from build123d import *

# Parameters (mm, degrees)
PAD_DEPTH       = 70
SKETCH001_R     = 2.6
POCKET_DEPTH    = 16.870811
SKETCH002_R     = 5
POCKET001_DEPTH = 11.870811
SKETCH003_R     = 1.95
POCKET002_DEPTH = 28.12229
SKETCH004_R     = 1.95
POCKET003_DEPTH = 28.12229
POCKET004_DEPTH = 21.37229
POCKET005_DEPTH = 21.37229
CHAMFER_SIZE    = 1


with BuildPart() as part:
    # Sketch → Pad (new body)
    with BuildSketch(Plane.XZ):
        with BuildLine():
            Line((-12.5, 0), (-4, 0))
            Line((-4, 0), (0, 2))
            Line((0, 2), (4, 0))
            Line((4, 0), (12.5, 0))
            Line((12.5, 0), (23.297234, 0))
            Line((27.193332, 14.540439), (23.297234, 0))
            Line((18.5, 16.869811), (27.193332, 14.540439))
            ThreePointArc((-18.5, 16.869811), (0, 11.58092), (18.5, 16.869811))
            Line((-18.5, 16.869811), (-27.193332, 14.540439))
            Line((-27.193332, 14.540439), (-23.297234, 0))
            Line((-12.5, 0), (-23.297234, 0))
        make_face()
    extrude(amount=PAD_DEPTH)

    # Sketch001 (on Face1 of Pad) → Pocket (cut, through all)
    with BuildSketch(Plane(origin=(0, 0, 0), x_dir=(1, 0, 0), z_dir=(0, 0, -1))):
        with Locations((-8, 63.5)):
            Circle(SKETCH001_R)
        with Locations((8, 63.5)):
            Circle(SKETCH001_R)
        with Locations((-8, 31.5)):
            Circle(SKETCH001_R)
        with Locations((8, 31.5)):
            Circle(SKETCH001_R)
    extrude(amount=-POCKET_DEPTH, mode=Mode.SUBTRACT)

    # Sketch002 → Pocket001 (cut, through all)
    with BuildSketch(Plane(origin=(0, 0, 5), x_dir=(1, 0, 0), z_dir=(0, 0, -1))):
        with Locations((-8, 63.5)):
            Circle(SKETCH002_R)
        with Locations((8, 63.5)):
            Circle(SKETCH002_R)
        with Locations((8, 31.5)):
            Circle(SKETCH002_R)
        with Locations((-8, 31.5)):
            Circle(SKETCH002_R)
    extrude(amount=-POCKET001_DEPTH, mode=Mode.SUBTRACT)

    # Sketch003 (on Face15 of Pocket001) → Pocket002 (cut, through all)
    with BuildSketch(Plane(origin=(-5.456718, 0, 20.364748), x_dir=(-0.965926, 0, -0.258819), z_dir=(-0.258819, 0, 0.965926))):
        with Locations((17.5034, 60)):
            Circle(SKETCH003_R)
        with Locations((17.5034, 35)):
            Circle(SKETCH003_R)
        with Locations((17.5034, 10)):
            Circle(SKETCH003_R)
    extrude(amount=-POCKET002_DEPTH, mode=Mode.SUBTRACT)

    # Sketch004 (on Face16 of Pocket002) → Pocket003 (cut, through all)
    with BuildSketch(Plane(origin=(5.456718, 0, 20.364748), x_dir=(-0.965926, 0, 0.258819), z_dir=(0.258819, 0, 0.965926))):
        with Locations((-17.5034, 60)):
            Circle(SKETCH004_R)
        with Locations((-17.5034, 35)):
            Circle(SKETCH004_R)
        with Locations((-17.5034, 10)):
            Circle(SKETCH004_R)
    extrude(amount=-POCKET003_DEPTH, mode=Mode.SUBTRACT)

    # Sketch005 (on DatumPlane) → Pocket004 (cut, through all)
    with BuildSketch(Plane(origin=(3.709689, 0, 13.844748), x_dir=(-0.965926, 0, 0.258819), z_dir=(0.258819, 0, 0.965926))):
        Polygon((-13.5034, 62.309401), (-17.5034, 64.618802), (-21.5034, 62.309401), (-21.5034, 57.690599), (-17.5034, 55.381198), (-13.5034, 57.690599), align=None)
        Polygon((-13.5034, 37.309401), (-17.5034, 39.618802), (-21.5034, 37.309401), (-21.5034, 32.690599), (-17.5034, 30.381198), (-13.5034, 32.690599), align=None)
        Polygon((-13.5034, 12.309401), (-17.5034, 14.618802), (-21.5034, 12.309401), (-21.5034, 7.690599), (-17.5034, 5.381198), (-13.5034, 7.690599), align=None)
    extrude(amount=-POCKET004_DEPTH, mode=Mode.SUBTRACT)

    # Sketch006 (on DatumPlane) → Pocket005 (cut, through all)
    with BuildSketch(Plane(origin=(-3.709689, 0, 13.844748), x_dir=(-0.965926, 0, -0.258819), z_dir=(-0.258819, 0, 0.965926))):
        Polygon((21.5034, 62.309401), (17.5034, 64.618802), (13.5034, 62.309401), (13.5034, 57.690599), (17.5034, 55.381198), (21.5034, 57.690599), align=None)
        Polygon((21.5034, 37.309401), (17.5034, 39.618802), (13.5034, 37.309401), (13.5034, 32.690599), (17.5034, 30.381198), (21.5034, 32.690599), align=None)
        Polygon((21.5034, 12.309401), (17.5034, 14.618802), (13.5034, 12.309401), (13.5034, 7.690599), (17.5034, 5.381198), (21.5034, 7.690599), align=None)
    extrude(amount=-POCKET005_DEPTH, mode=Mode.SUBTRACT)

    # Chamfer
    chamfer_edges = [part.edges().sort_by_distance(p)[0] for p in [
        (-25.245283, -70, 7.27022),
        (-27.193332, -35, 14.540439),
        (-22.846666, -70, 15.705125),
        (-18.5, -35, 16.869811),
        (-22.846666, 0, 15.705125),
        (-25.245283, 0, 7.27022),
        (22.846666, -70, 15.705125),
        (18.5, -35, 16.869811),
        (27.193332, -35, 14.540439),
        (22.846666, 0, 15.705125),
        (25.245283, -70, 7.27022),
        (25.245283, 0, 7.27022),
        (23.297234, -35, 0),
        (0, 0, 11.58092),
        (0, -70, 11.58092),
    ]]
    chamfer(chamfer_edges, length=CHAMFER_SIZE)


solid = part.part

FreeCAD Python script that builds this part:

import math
import FreeCAD as App
import Part
import Sketcher
Q = App.Units.Quantity


def edges_at(feature, points):
    """Names of the edges that pass closest to the given points."""
    edges = feature.Shape.Edges
    near = lambda p: min(range(len(edges)), key=lambda i: edges[i].distToShape(Part.Vertex(*p))[0])
    return sorted({f"Edge{near(p) + 1}" for p in points})

doc = App.newDocument("Part")
body = doc.addObject("PartDesign::Body", "Body")

# Sketch on XZ plane
sketch1 = doc.addObject("Sketcher::SketchObject", "Sketch")
body.addObject(sketch1)
sketch1.AttachmentSupport = (doc.XZ_Plane, [""])
sketch1.MapMode = "FlatFace"
sketch1.addGeometry(Part.LineSegment(App.Vector(-4, 0, 0), App.Vector(0, 2, 0)), False)
sketch1.addGeometry(Part.LineSegment(App.Vector(0, 2, 0), App.Vector(4, 0, 0)), False)
sketch1.addGeometry(Part.LineSegment(App.Vector(4, 0, 0), App.Vector(23.3, 0, 0)), False)
sketch1.addGeometry(Part.LineSegment(App.Vector(23.3, 0, 0), App.Vector(27.2, 14.5, 0)), False)
sketch1.addGeometry(Part.LineSegment(App.Vector(27.2, 14.5, 0), App.Vector(18.5, 16.9, 0)), False)
sketch1.addGeometry(Part.ArcOfCircle(Part.Circle(App.Vector(0, 46.6, 0), App.Vector(0, 0, 1), 35), math.radians(-122), math.radians(-58)), False)
sketch1.addGeometry(Part.LineSegment(App.Vector(-18.5, 16.9, 0), App.Vector(-27.2, 14.5, 0)), False)
sketch1.addGeometry(Part.LineSegment(App.Vector(-27.2, 14.5, 0), App.Vector(-23.3, 0, 0)), False)
sketch1.addGeometry(Part.LineSegment(App.Vector(-23.3, 0, 0), App.Vector(-4, 0, 0)), False)
sketch1.addConstraint(Sketcher.Constraint("Coincident", 0, 2, 1, 1))
sketch1.addConstraint(Sketcher.Constraint("Coincident", 1, 2, 2, 1))
sketch1.addConstraint(Sketcher.Constraint("Coincident", 2, 2, 3, 1))
sketch1.addConstraint(Sketcher.Constraint("Coincident", 3, 2, 4, 1))
sketch1.addConstraint(Sketcher.Constraint("Coincident", 4, 2, 5, 2))
sketch1.addConstraint(Sketcher.Constraint("Coincident", 5, 1, 6, 1))
sketch1.addConstraint(Sketcher.Constraint("Coincident", 6, 2, 7, 1))
sketch1.addConstraint(Sketcher.Constraint("Coincident", 7, 2, 8, 1))
sketch1.addConstraint(Sketcher.Constraint("Coincident", 8, 2, 0, 1))
sketch1.addConstraint(Sketcher.Constraint("Horizontal", 2))
sketch1.addConstraint(Sketcher.Constraint("Horizontal", 8))
sketch1.addConstraint(Sketcher.Constraint("Symmetric", 2, 2, 7, 2, -1, 1))
sketch1.addConstraint(Sketcher.Constraint("Symmetric", 4, 2, 5, 1, -2))
sketch1.addConstraint(Sketcher.Constraint("Symmetric", 3, 2, 6, 2, -2))
sketch1.addConstraint(Sketcher.Constraint("Symmetric", 1, 2, 8, 2, -2))
sketch1.addConstraint(Sketcher.Constraint("PointOnObject", 0, 2, -2))
sketch1.addConstraint(Sketcher.Constraint("Perpendicular", 3, 4))
sketch1.addConstraint(Sketcher.Constraint("Radius", 5, Q("35 mm")))
sketch1.addConstraint(Sketcher.Constraint("Angle", 3, Q("75.000003 deg")))
sketch1.addConstraint(Sketcher.Constraint("Distance", 4, Q("9 mm")))
sketch1.addConstraint(Sketcher.Constraint("DistanceY", -1, 1, 0, 2, Q("2 mm")))
sketch1.addConstraint(Sketcher.Constraint("DistanceX", -1, 1, 1, 2, Q("4 mm")))
sketch1.addConstraint(Sketcher.Constraint("DistanceX", 5, 1, 4, 2, Q("37 mm")))
sketch1.addConstraint(Sketcher.Constraint("DistanceX", 2, 2, 3, 2, Q("3.896098 mm")))
pad1 = doc.addObject("PartDesign::Pad", "Pad")
body.addObject(pad1)
pad1.Profile = sketch1
pad1.Length = 70

# Sketch on XY plane
sketch2 = doc.addObject("Sketcher::SketchObject", "Sketch001")
body.addObject(sketch2)
sketch2.AttachmentSupport = (doc.XY_Plane, [""])
sketch2.MapMode = "FlatFace"
sketch2.addGeometry(Part.Circle(App.Vector(-8, -63.5, 0), App.Vector(0, 0, 1), 2.6), False)
sketch2.addGeometry(Part.Circle(App.Vector(8, -63.5, 0), App.Vector(0, 0, 1), 2.6), False)
sketch2.addGeometry(Part.Circle(App.Vector(-8, -31.5, 0), App.Vector(0, 0, 1), 2.6), False)
sketch2.addGeometry(Part.Circle(App.Vector(8, -31.5, 0), App.Vector(0, 0, 1), 2.6), False)
sketch2.addConstraint(Sketcher.Constraint("Equal", 0, 1))
sketch2.addConstraint(Sketcher.Constraint("Equal", 1, 2))
sketch2.addConstraint(Sketcher.Constraint("Equal", 2, 3))
sketch2.addConstraint(Sketcher.Constraint("Symmetric", 0, 3, 1, 3, -2))
sketch2.addConstraint(Sketcher.Constraint("Symmetric", 2, 3, 3, 3, -2))
sketch2.addConstraint(Sketcher.Constraint("Vertical", 0, 3, 2, 3))
sketch2.addConstraint(Sketcher.Constraint("Diameter", 0, Q("5.2 mm")))
sketch2.addConstraint(Sketcher.Constraint("DistanceX", 0, 3, -1, 1, Q("8 mm")))
sketch2.addConstraint(Sketcher.Constraint("DistanceY", 0, 3, 2, 3, Q("32 mm")))
sketch2.addConstraint(Sketcher.Constraint("DistanceY", 0, 3, -1, 1, Q("63.5 mm")))
pocket1 = doc.addObject("PartDesign::Pocket", "Pocket")
body.addObject(pocket1)
pocket1.Profile = sketch2
pocket1.Type = "ThroughAll"
pocket1.Reversed = True

# Sketch on XY plane
sketch3 = doc.addObject("Sketcher::SketchObject", "Sketch002")
body.addObject(sketch3)
sketch3.AttachmentSupport = (doc.XY_Plane, [""])
sketch3.MapMode = "FlatFace"
sketch3.AttachmentOffset = App.Placement(App.Vector(0, 0, 5), App.Rotation())
sketch3.addGeometry(Part.Circle(App.Vector(-8, -64, 0), App.Vector(0, 0, 1), 5), False)
sketch3.addGeometry(Part.Circle(App.Vector(8, -64, 0), App.Vector(0, 0, 1), 5), False)
sketch3.addGeometry(Part.Circle(App.Vector(8, -32, 0), App.Vector(0, 0, 1), 5), False)
sketch3.addGeometry(Part.Circle(App.Vector(-8, -32, 0), App.Vector(0, 0, 1), 5), False)
sketch3.addConstraint(Sketcher.Constraint("Equal", 0, 1))
sketch3.addConstraint(Sketcher.Constraint("Equal", 1, 2))
sketch3.addConstraint(Sketcher.Constraint("Equal", 2, 3))
sketch3.addConstraint(Sketcher.Constraint("Symmetric", 0, 3, 1, 3, -2))
sketch3.addConstraint(Sketcher.Constraint("Symmetric", 2, 3, 3, 3, -2))
sketch3.addConstraint(Sketcher.Constraint("Vertical", 1, 3, 2, 3))
sketch3.addConstraint(Sketcher.Constraint("Diameter", 0, Q("10 mm")))
sketch3.addConstraint(Sketcher.Constraint("DistanceX", 0, 3, -1, 1, Q("8 mm")))
sketch3.addConstraint(Sketcher.Constraint("DistanceY", 1, 3, 2, 3, Q("32 mm")))
sketch3.addConstraint(Sketcher.Constraint("DistanceY", 0, 3, -1, 1, Q("63.5 mm")))
pocket2 = doc.addObject("PartDesign::Pocket", "Pocket001")
body.addObject(pocket2)
pocket2.Profile = sketch3
pocket2.Type = "ThroughAll"
pocket2.Reversed = True

# Sketch on an angled plane
sketch4 = doc.addObject("Sketcher::SketchObject", "Sketch003")
body.addObject(sketch4)
sketch4.Placement = App.Placement(App.Vector(-5.456718, 0, 20.364748), App.Rotation(App.Vector(-0.965925849, 0, -0.25881896), App.Vector(0, -1, 0), App.Vector(-0.25881896, 0, 0.965925849), "ZXY"))
sketch4.addGeometry(Part.Circle(App.Vector(17.5, 60, 0), App.Vector(0, 0, 1), 1.9), False)
sketch4.addGeometry(Part.Circle(App.Vector(17.5, 35, 0), App.Vector(0, 0, 1), 1.9), False)
sketch4.addGeometry(Part.Circle(App.Vector(17.5, 10, 0), App.Vector(0, 0, 1), 1.9), False)
sketch4.addConstraint(Sketcher.Constraint("Equal", 0, 1))
sketch4.addConstraint(Sketcher.Constraint("Equal", 1, 2))
sketch4.addConstraint(Sketcher.Constraint("Vertical", 0, 3, 1, 3))
sketch4.addConstraint(Sketcher.Constraint("Vertical", 1, 3, 2, 3))
sketch4.addConstraint(Sketcher.Constraint("Diameter", 0, Q("3.9 mm")))
sketch4.addConstraint(Sketcher.Constraint("DistanceY", -1, 1, 0, 3, Q("60 mm")))
sketch4.addConstraint(Sketcher.Constraint("DistanceY", -1, 1, 1, 3, Q("35 mm")))
sketch4.addConstraint(Sketcher.Constraint("DistanceY", -1, 1, 2, 3, Q("10 mm")))
sketch4.addConstraint(Sketcher.Constraint("DistanceX", -1, 1, 0, 3, Q("17.5034 mm")))
pocket3 = doc.addObject("PartDesign::Pocket", "Pocket002")
body.addObject(pocket3)
pocket3.Profile = sketch4
pocket3.Type = "ThroughAll"

# Sketch on an angled plane
sketch5 = doc.addObject("Sketcher::SketchObject", "Sketch004")
body.addObject(sketch5)
sketch5.Placement = App.Placement(App.Vector(5.456718, 0, 20.364748), App.Rotation(App.Vector(-0.965925849, 0, 0.25881896), App.Vector(0, -1, 0), App.Vector(0.25881896, 0, 0.965925849), "ZXY"))
sketch5.addGeometry(Part.Circle(App.Vector(-17.5, 60, 0), App.Vector(0, 0, 1), 1.9), False)
sketch5.addGeometry(Part.Circle(App.Vector(-17.5, 35, 0), App.Vector(0, 0, 1), 1.9), False)
sketch5.addGeometry(Part.Circle(App.Vector(-17.5, 10, 0), App.Vector(0, 0, 1), 1.9), False)
sketch5.addConstraint(Sketcher.Constraint("Equal", 0, 1))
sketch5.addConstraint(Sketcher.Constraint("Equal", 1, 2))
sketch5.addConstraint(Sketcher.Constraint("Vertical", 0, 3, 1, 3))
sketch5.addConstraint(Sketcher.Constraint("Vertical", 1, 3, 2, 3))
sketch5.addConstraint(Sketcher.Constraint("Diameter", 0, Q("3.9 mm")))
sketch5.addConstraint(Sketcher.Constraint("DistanceY", -1, 1, 0, 3, Q("60 mm")))
sketch5.addConstraint(Sketcher.Constraint("DistanceY", -1, 1, 1, 3, Q("35 mm")))
sketch5.addConstraint(Sketcher.Constraint("DistanceY", -1, 1, 2, 3, Q("10 mm")))
sketch5.addConstraint(Sketcher.Constraint("DistanceX", 0, 3, -1, 1, Q("17.5034 mm")))
pocket4 = doc.addObject("PartDesign::Pocket", "Pocket003")
body.addObject(pocket4)
pocket4.Profile = sketch5
pocket4.Type = "ThroughAll"

# Sketch on an angled plane
sketch6 = doc.addObject("Sketcher::SketchObject", "Sketch005")
body.addObject(sketch6)
sketch6.Placement = App.Placement(App.Vector(3.709689, 0, 13.844748), App.Rotation(App.Vector(-0.965925849, 0, 0.25881896), App.Vector(0, -1, 0), App.Vector(0.25881896, 0, 0.965925849), "ZXY"))
sketch6.addGeometry(Part.LineSegment(App.Vector(-13.5, 62.3, 0), App.Vector(-17.5, 64.6, 0)), False)
sketch6.addGeometry(Part.LineSegment(App.Vector(-17.5, 64.6, 0), App.Vector(-21.5, 62.3, 0)), False)
sketch6.addGeometry(Part.LineSegment(App.Vector(-21.5, 62.3, 0), App.Vector(-21.5, 57.7, 0)), False)
sketch6.addGeometry(Part.LineSegment(App.Vector(-21.5, 57.7, 0), App.Vector(-17.5, 55.4, 0)), False)
sketch6.addGeometry(Part.LineSegment(App.Vector(-17.5, 55.4, 0), App.Vector(-13.5, 57.7, 0)), False)
sketch6.addGeometry(Part.LineSegment(App.Vector(-13.5, 57.7, 0), App.Vector(-13.5, 62.3, 0)), False)
sketch6.addGeometry(Part.LineSegment(App.Vector(-13.5, 37.3, 0), App.Vector(-17.5, 39.6, 0)), False)
sketch6.addGeometry(Part.LineSegment(App.Vector(-17.5, 39.6, 0), App.Vector(-21.5, 37.3, 0)), False)
sketch6.addGeometry(Part.LineSegment(App.Vector(-21.5, 37.3, 0), App.Vector(-21.5, 32.7, 0)), False)
sketch6.addGeometry(Part.LineSegment(App.Vector(-21.5, 32.7, 0), App.Vector(-17.5, 30.4, 0)), False)
sketch6.addGeometry(Part.LineSegment(App.Vector(-17.5, 30.4, 0), App.Vector(-13.5, 32.7, 0)), False)
sketch6.addGeometry(Part.LineSegment(App.Vector(-13.5, 32.7, 0), App.Vector(-13.5, 37.3, 0)), False)
sketch6.addGeometry(Part.LineSegment(App.Vector(-13.5, 12.3, 0), App.Vector(-17.5, 14.6, 0)), False)
sketch6.addGeometry(Part.LineSegment(App.Vector(-17.5, 14.6, 0), App.Vector(-21.5, 12.3, 0)), False)
sketch6.addGeometry(Part.LineSegment(App.Vector(-21.5, 12.3, 0), App.Vector(-21.5, 7.7, 0)), False)
sketch6.addGeometry(Part.LineSegment(App.Vector(-21.5, 7.7, 0), App.Vector(-17.5, 5.4, 0)), False)
sketch6.addGeometry(Part.LineSegment(App.Vector(-17.5, 5.4, 0), App.Vector(-13.5, 7.7, 0)), False)
sketch6.addGeometry(Part.LineSegment(App.Vector(-13.5, 7.7, 0), App.Vector(-13.5, 12.3, 0)), False)
sketch6.addConstraint(Sketcher.Constraint("Coincident", 0, 2, 1, 1))
sketch6.addConstraint(Sketcher.Constraint("Coincident", 1, 2, 2, 1))
sketch6.addConstraint(Sketcher.Constraint("Coincident", 2, 2, 3, 1))
sketch6.addConstraint(Sketcher.Constraint("Coincident", 3, 2, 4, 1))
sketch6.addConstraint(Sketcher.Constraint("Coincident", 4, 2, 5, 1))
sketch6.addConstraint(Sketcher.Constraint("Coincident", 5, 2, 0, 1))
sketch6.addConstraint(Sketcher.Constraint("Coincident", 6, 2, 7, 1))
sketch6.addConstraint(Sketcher.Constraint("Coincident", 7, 2, 8, 1))
sketch6.addConstraint(Sketcher.Constraint("Coincident", 8, 2, 9, 1))
sketch6.addConstraint(Sketcher.Constraint("Coincident", 9, 2, 10, 1))
sketch6.addConstraint(Sketcher.Constraint("Coincident", 10, 2, 11, 1))
sketch6.addConstraint(Sketcher.Constraint("Coincident", 11, 2, 6, 1))
sketch6.addConstraint(Sketcher.Constraint("Coincident", 12, 2, 13, 1))
sketch6.addConstraint(Sketcher.Constraint("Coincident", 13, 2, 14, 1))
sketch6.addConstraint(Sketcher.Constraint("Coincident", 14, 2, 15, 1))
sketch6.addConstraint(Sketcher.Constraint("Coincident", 15, 2, 16, 1))
sketch6.addConstraint(Sketcher.Constraint("Coincident", 16, 2, 17, 1))
sketch6.addConstraint(Sketcher.Constraint("Coincident", 17, 2, 12, 1))
sketch6.addConstraint(Sketcher.Constraint("Vertical", 2))
sketch6.addConstraint(Sketcher.Constraint("Vertical", 5))
sketch6.addConstraint(Sketcher.Constraint("Vertical", 8))
sketch6.addConstraint(Sketcher.Constraint("Vertical", 11))
sketch6.addConstraint(Sketcher.Constraint("Vertical", 14))
sketch6.addConstraint(Sketcher.Constraint("Vertical", 17))
sketch6.addConstraint(Sketcher.Constraint("Parallel", 0, 3))
sketch6.addConstraint(Sketcher.Constraint("Parallel", 1, 4))
sketch6.addConstraint(Sketcher.Constraint("Parallel", 3, 6))
sketch6.addConstraint(Sketcher.Constraint("Parallel", 4, 7))
sketch6.addConstraint(Sketcher.Constraint("Parallel", 6, 9))
sketch6.addConstraint(Sketcher.Constraint("Parallel", 7, 10))
sketch6.addConstraint(Sketcher.Constraint("Parallel", 9, 12))
sketch6.addConstraint(Sketcher.Constraint("Parallel", 10, 13))
sketch6.addConstraint(Sketcher.Constraint("Parallel", 12, 15))
sketch6.addConstraint(Sketcher.Constraint("Parallel", 13, 16))
sketch6.addConstraint(Sketcher.Constraint("Horizontal", 2, 2, 4, 2))
sketch6.addConstraint(Sketcher.Constraint("Horizontal", 1, 2, 5, 2))
sketch6.addConstraint(Sketcher.Constraint("Horizontal", 8, 2, 10, 2))
sketch6.addConstraint(Sketcher.Constraint("Horizontal", 7, 2, 11, 2))
sketch6.addConstraint(Sketcher.Constraint("Horizontal", 14, 2, 16, 2))
sketch6.addConstraint(Sketcher.Constraint("Horizontal", 13, 2, 17, 2))
sketch6.addConstraint(Sketcher.Constraint("Vertical", 0, 2, 3, 2))
sketch6.addConstraint(Sketcher.Constraint("Vertical", 3, 2, 6, 2))
sketch6.addConstraint(Sketcher.Constraint("Vertical", 2, 2, 7, 2))
sketch6.addConstraint(Sketcher.Constraint("Vertical", 9, 2, 12, 2))
sketch6.addConstraint(Sketcher.Constraint("Vertical", 8, 2, 13, 2))
sketch6.addConstraint(Sketcher.Constraint("Equal", 5, 8))
sketch6.addConstraint(Sketcher.Constraint("Equal", 11, 14))
sketch6.addConstraint(Sketcher.Constraint("Angle", 0, Q("150.000001 deg")))
sketch6.addConstraint(Sketcher.Constraint("DistanceX", 1, 2, 0, 2, Q("4 mm")))
sketch6.addConstraint(Sketcher.Constraint("DistanceY", 7, 2, 1, 2, Q("25 mm")))
sketch6.addConstraint(Sketcher.Constraint("DistanceY", 13, 2, 7, 2, Q("25 mm")))
sketch6.addConstraint(Sketcher.Constraint("DistanceY", 2, 2, 2, 1, Q("4.618802 mm")))
sketch6.addConstraint(Sketcher.Constraint("DistanceX", 0, 2, -1, 1, Q("17.5034 mm")))
sketch6.addConstraint(Sketcher.Constraint("DistanceY", -1, 1, 0, 2, Q("64.618802 mm")))
pocket5 = doc.addObject("PartDesign::Pocket", "Pocket004")
body.addObject(pocket5)
pocket5.Profile = sketch6
pocket5.Type = "ThroughAll"

# Sketch on an angled plane
sketch7 = doc.addObject("Sketcher::SketchObject", "Sketch006")
body.addObject(sketch7)
sketch7.Placement = App.Placement(App.Vector(-3.709689, 0, 13.844748), App.Rotation(App.Vector(-0.965925849, 0, -0.25881896), App.Vector(0, -1, 0), App.Vector(-0.25881896, 0, 0.965925849), "ZXY"))
sketch7.addGeometry(Part.LineSegment(App.Vector(21.5, 62.3, 0), App.Vector(17.5, 64.6, 0)), False)
sketch7.addGeometry(Part.LineSegment(App.Vector(17.5, 64.6, 0), App.Vector(13.5, 62.3, 0)), False)
sketch7.addGeometry(Part.LineSegment(App.Vector(13.5, 62.3, 0), App.Vector(13.5, 57.7, 0)), False)
sketch7.addGeometry(Part.LineSegment(App.Vector(13.5, 57.7, 0), App.Vector(17.5, 55.4, 0)), False)
sketch7.addGeometry(Part.LineSegment(App.Vector(17.5, 55.4, 0), App.Vector(21.5, 57.7, 0)), False)
sketch7.addGeometry(Part.LineSegment(App.Vector(21.5, 57.7, 0), App.Vector(21.5, 62.3, 0)), False)
sketch7.addGeometry(Part.LineSegment(App.Vector(21.5, 37.3, 0), App.Vector(17.5, 39.6, 0)), False)
sketch7.addGeometry(Part.LineSegment(App.Vector(17.5, 39.6, 0), App.Vector(13.5, 37.3, 0)), False)
sketch7.addGeometry(Part.LineSegment(App.Vector(13.5, 37.3, 0), App.Vector(13.5, 32.7, 0)), False)
sketch7.addGeometry(Part.LineSegment(App.Vector(13.5, 32.7, 0), App.Vector(17.5, 30.4, 0)), False)
sketch7.addGeometry(Part.LineSegment(App.Vector(17.5, 30.4, 0), App.Vector(21.5, 32.7, 0)), False)
sketch7.addGeometry(Part.LineSegment(App.Vector(21.5, 32.7, 0), App.Vector(21.5, 37.3, 0)), False)
sketch7.addGeometry(Part.LineSegment(App.Vector(21.5, 12.3, 0), App.Vector(17.5, 14.6, 0)), False)
sketch7.addGeometry(Part.LineSegment(App.Vector(17.5, 14.6, 0), App.Vector(13.5, 12.3, 0)), False)
sketch7.addGeometry(Part.LineSegment(App.Vector(13.5, 12.3, 0), App.Vector(13.5, 7.7, 0)), False)
sketch7.addGeometry(Part.LineSegment(App.Vector(13.5, 7.7, 0), App.Vector(17.5, 5.4, 0)), False)
sketch7.addGeometry(Part.LineSegment(App.Vector(17.5, 5.4, 0), App.Vector(21.5, 7.7, 0)), False)
sketch7.addGeometry(Part.LineSegment(App.Vector(21.5, 7.7, 0), App.Vector(21.5, 12.3, 0)), False)
sketch7.addConstraint(Sketcher.Constraint("Coincident", 0, 2, 1, 1))
sketch7.addConstraint(Sketcher.Constraint("Coincident", 1, 2, 2, 1))
sketch7.addConstraint(Sketcher.Constraint("Coincident", 2, 2, 3, 1))
sketch7.addConstraint(Sketcher.Constraint("Coincident", 3, 2, 4, 1))
sketch7.addConstraint(Sketcher.Constraint("Coincident", 4, 2, 5, 1))
sketch7.addConstraint(Sketcher.Constraint("Coincident", 5, 2, 0, 1))
sketch7.addConstraint(Sketcher.Constraint("Coincident", 6, 2, 7, 1))
sketch7.addConstraint(Sketcher.Constraint("Coincident", 7, 2, 8, 1))
sketch7.addConstraint(Sketcher.Constraint("Coincident", 8, 2, 9, 1))
sketch7.addConstraint(Sketcher.Constraint("Coincident", 9, 2, 10, 1))
sketch7.addConstraint(Sketcher.Constraint("Coincident", 10, 2, 11, 1))
sketch7.addConstraint(Sketcher.Constraint("Coincident", 11, 2, 6, 1))
sketch7.addConstraint(Sketcher.Constraint("Coincident", 12, 2, 13, 1))
sketch7.addConstraint(Sketcher.Constraint("Coincident", 13, 2, 14, 1))
sketch7.addConstraint(Sketcher.Constraint("Coincident", 14, 2, 15, 1))
sketch7.addConstraint(Sketcher.Constraint("Coincident", 15, 2, 16, 1))
sketch7.addConstraint(Sketcher.Constraint("Coincident", 16, 2, 17, 1))
sketch7.addConstraint(Sketcher.Constraint("Coincident", 17, 2, 12, 1))
sketch7.addConstraint(Sketcher.Constraint("Vertical", 2))
sketch7.addConstraint(Sketcher.Constraint("Vertical", 5))
sketch7.addConstraint(Sketcher.Constraint("Vertical", 8))
sketch7.addConstraint(Sketcher.Constraint("Vertical", 11))
sketch7.addConstraint(Sketcher.Constraint("Vertical", 14))
sketch7.addConstraint(Sketcher.Constraint("Vertical", 17))
sketch7.addConstraint(Sketcher.Constraint("Parallel", 0, 3))
sketch7.addConstraint(Sketcher.Constraint("Parallel", 1, 4))
sketch7.addConstraint(Sketcher.Constraint("Parallel", 3, 6))
sketch7.addConstraint(Sketcher.Constraint("Parallel", 4, 7))
sketch7.addConstraint(Sketcher.Constraint("Parallel", 6, 9))
sketch7.addConstraint(Sketcher.Constraint("Parallel", 7, 10))
sketch7.addConstraint(Sketcher.Constraint("Parallel", 9, 12))
sketch7.addConstraint(Sketcher.Constraint("Parallel", 10, 13))
sketch7.addConstraint(Sketcher.Constraint("Parallel", 12, 15))
sketch7.addConstraint(Sketcher.Constraint("Parallel", 13, 16))
sketch7.addConstraint(Sketcher.Constraint("Horizontal", 2, 2, 4, 2))
sketch7.addConstraint(Sketcher.Constraint("Horizontal", 1, 2, 5, 2))
sketch7.addConstraint(Sketcher.Constraint("Horizontal", 8, 2, 10, 2))
sketch7.addConstraint(Sketcher.Constraint("Horizontal", 7, 2, 11, 2))
sketch7.addConstraint(Sketcher.Constraint("Horizontal", 14, 2, 16, 2))
sketch7.addConstraint(Sketcher.Constraint("Horizontal", 13, 2, 17, 2))
sketch7.addConstraint(Sketcher.Constraint("Vertical", 0, 2, 3, 2))
sketch7.addConstraint(Sketcher.Constraint("Vertical", 3, 2, 6, 2))
sketch7.addConstraint(Sketcher.Constraint("Vertical", 2, 2, 7, 2))
sketch7.addConstraint(Sketcher.Constraint("Vertical", 9, 2, 12, 2))
sketch7.addConstraint(Sketcher.Constraint("Vertical", 8, 2, 13, 2))
sketch7.addConstraint(Sketcher.Constraint("Equal", 5, 8))
sketch7.addConstraint(Sketcher.Constraint("Equal", 11, 14))
sketch7.addConstraint(Sketcher.Constraint("Angle", 0, Q("150.000001 deg")))
sketch7.addConstraint(Sketcher.Constraint("DistanceX", 1, 2, 0, 2, Q("4 mm")))
sketch7.addConstraint(Sketcher.Constraint("DistanceY", 7, 2, 1, 2, Q("25 mm")))
sketch7.addConstraint(Sketcher.Constraint("DistanceY", 13, 2, 7, 2, Q("25 mm")))
sketch7.addConstraint(Sketcher.Constraint("DistanceY", 2, 2, 2, 1, Q("4.618802 mm")))
sketch7.addConstraint(Sketcher.Constraint("DistanceX", -1, 1, 0, 2, Q("17.5034 mm")))
sketch7.addConstraint(Sketcher.Constraint("DistanceY", -1, 1, 0, 2, Q("64.618802 mm")))
pocket6 = doc.addObject("PartDesign::Pocket", "Pocket005")
body.addObject(pocket6)
pocket6.Profile = sketch7
pocket6.Type = "ThroughAll"
doc.recompute()

chamfer = doc.addObject("PartDesign::Chamfer", "Chamfer")
body.addObject(chamfer)
chamfer.Base = (pocket6, edges_at(pocket6, [
    (-25.245, -70, 7.27),
    (-27.193, -35, 14.54),
    (-22.847, -70, 15.705),
    (-18.5, -35, 16.87),
    (-22.847, 0, 15.705),
    (-25.245, 0, 7.27),
    (22.847, -70, 15.705),
    (18.5, -35, 16.87),
    (27.193, -35, 14.54),
    (22.847, 0, 15.705),
    (25.245, -70, 7.27),
    (25.245, 0, 7.27),
    (23.297, -35, 0),
    (0, 0, 11.581),
    (0, -70, 11.581),
]))
chamfer.Size = 1

doc.recompute()
